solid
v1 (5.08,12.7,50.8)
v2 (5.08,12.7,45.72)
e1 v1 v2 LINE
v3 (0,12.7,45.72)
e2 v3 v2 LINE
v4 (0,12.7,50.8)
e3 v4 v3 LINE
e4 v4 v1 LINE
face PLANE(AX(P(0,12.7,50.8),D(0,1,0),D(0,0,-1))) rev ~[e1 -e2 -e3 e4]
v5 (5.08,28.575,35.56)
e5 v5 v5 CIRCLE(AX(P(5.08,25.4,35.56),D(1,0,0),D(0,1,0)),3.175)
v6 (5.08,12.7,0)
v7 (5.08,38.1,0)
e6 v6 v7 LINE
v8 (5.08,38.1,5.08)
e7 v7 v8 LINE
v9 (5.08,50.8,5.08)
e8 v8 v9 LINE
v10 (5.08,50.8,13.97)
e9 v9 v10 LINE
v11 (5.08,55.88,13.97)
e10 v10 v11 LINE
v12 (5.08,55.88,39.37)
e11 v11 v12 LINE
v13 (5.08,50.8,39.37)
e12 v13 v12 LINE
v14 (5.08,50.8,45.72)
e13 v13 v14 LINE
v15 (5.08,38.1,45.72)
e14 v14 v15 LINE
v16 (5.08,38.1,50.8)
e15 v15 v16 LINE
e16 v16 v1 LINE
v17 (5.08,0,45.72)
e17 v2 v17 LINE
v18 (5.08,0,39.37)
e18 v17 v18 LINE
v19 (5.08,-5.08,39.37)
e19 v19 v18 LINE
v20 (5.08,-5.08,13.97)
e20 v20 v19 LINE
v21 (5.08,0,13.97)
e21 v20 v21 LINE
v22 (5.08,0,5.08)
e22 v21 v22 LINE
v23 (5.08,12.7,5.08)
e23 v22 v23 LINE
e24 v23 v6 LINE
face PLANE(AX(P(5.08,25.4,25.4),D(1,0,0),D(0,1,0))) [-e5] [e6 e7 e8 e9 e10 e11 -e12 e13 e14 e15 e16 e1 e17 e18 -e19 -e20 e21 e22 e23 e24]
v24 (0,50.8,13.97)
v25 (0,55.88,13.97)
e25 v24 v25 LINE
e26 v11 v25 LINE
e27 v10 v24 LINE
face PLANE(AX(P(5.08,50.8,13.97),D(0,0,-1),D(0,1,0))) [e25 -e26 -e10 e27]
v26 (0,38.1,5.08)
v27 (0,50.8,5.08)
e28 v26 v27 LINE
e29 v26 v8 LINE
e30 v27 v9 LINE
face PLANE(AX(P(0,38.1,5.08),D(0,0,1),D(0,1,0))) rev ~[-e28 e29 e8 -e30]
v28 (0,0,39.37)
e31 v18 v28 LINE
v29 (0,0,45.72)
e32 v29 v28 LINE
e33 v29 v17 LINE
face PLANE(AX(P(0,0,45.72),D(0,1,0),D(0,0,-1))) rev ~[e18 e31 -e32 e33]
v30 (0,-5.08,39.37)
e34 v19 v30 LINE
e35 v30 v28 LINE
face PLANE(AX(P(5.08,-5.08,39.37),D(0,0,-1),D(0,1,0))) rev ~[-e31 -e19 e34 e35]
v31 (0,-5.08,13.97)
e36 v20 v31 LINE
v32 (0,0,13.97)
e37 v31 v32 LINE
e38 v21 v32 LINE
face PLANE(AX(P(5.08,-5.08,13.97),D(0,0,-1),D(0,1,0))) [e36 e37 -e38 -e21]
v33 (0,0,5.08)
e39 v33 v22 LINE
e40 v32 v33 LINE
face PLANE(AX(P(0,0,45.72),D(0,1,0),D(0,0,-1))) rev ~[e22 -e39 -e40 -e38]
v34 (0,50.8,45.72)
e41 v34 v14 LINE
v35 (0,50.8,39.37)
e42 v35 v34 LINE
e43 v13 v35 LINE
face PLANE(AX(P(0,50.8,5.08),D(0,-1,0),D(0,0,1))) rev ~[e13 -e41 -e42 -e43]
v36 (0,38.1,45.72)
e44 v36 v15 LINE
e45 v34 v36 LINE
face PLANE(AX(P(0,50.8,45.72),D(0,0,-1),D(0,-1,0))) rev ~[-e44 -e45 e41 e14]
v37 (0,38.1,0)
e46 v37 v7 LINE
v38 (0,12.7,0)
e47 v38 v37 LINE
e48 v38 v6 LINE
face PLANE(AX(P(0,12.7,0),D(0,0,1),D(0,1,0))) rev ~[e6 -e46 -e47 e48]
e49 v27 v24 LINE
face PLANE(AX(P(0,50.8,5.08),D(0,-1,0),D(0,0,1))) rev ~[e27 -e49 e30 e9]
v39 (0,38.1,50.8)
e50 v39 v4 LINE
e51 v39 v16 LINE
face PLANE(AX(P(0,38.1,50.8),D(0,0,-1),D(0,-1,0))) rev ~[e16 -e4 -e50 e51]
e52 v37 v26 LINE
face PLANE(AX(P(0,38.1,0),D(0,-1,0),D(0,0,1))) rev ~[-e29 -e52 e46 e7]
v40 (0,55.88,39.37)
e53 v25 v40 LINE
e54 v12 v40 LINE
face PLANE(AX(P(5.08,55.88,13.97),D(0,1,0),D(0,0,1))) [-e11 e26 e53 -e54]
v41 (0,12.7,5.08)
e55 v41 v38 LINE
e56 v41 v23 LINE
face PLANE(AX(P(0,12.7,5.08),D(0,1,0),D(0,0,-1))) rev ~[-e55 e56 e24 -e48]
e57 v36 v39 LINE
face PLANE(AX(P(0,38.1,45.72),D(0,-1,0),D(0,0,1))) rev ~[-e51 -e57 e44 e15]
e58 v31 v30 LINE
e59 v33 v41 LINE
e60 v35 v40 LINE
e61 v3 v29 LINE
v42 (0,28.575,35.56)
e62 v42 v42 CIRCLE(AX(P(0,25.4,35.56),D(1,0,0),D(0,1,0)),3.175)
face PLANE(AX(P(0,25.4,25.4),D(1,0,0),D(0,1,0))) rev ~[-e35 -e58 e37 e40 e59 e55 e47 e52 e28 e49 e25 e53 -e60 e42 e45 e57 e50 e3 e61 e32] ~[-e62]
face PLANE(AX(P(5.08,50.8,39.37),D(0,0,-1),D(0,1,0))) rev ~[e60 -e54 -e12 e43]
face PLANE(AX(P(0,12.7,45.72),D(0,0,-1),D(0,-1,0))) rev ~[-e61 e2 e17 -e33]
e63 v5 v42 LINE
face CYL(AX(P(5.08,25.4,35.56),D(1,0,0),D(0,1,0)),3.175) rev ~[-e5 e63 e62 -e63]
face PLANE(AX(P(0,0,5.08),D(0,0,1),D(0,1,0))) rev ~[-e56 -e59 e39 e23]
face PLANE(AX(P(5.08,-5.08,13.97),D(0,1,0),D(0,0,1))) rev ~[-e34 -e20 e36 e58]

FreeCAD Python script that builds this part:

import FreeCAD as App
import Part
import Sketcher
Q = App.Units.Quantity


def add_polygon(sketch, points):
    """Adds a closed chain of lines whose ends are joined by coincident constraints."""
    first, n = sketch.GeometryCount, len(points)
    for a, b in zip(points, points[1:] + points[:1]):
        sketch.addGeometry(Part.LineSegment(App.Vector(*a, 0), App.Vector(*b, 0)), False)
    for i in range(n):
        sketch.addConstraint(Sketcher.Constraint("Coincident", first + i, 2, first + (i + 1) % n, 1))

doc = App.newDocument("Part")
params = doc.addObject("Spreadsheet::Sheet", "Params")
for row, (alias, value) in enumerate([
    ("sketch1_width", "1 in"),
    ("sketch1_width2", "0.5 in"),
    ("sketch1_height", "0.2 in"),
    ("sketch1_height2", "1.6 in"),
    ("pad1_length", "0.2 in"),
    ("sketch2_diameter", "0.25 in"),
    ("pocket1_length", "1 in"),
    ("sketch3_height", "1 in"),
    ("sketch3_width", "0.2 in"),
    ("pad2_length", "0.2 in"),
], start=1):
    params.set(f"A{row}", alias)
    params.set(f"B{row}", "=" + value)
    params.setAlias(f"B{row}", alias)

body = doc.addObject("PartDesign::Body", "Body")

sketch1 = body.newObject("Sketcher::SketchObject", "Sketch")
sketch1.AttachmentSupport = (doc.getObject("YZ_Plane"), [""])
sketch1.MapMode = "FlatFace"
add_polygon(sketch1, [(13, 5), (13, 0), (38, 0), (38, 5), (51, 5), (51, 46), (38, 46), (38, 51), (13, 51), (13, 46), (0, 46), (0, 5)])
sketch1.addConstraint(Sketcher.Constraint("Vertical", 0))
sketch1.addConstraint(Sketcher.Constraint("Horizontal", 1))
sketch1.addConstraint(Sketcher.Constraint("Vertical", 2))
sketch1.addConstraint(Sketcher.Constraint("Horizontal", 3))
sketch1.addConstraint(Sketcher.Constraint("Vertical", 4))
sketch1.addConstraint(Sketcher.Constraint("Horizontal", 5))
sketch1.addConstraint(Sketcher.Constraint("Vertical", 6))
sketch1.addConstraint(Sketcher.Constraint("Horizontal", 7))
sketch1.addConstraint(Sketcher.Constraint("Vertical", 8))
sketch1.addConstraint(Sketcher.Constraint("Horizontal", 9))
sketch1.addConstraint(Sketcher.Constraint("Vertical", 10))
sketch1.addConstraint(Sketcher.Constraint("Horizontal", 11))
sketch1.addConstraint(Sketcher.Constraint("PointOnObject", 0, 2, -1))
sketch1.addConstraint(Sketcher.Constraint("PointOnObject", 9, 2, -2))
sketch1.addConstraint(Sketcher.Constraint("Horizontal", 5, 2, 8, 2))
sketch1.addConstraint(Sketcher.Constraint("Horizontal", 3, 2, 10, 2))
sketch1.addConstraint(Sketcher.Constraint("Vertical", 2, 2, 5, 2))
sketch1.addConstraint(Sketcher.Constraint("Vertical", 0, 2, 7, 2))
sketch1.addConstraint(Sketcher.Constraint("Equal", 5, 9))
sketch1.addConstraint(Sketcher.Constraint("Equal", 2, 6))
sketch1.addConstraint(Sketcher.Constraint("DistanceX", 1, 1, 1, 2, Q("1 in")))
sketch1.addConstraint(Sketcher.Constraint("DistanceX", 3, 1, 3, 2, Q("0.5 in")))
sketch1.addConstraint(Sketcher.Constraint("DistanceY", 0, 2, 0, 1, Q("0.2 in")))
sketch1.addConstraint(Sketcher.Constraint("DistanceY", 4, 1, 4, 2, Q("1.6 in")))
sketch1.setExpression("Constraints[32]", "Params.sketch1_width")
sketch1.setExpression("Constraints[33]", "Params.sketch1_width2")
sketch1.setExpression("Constraints[34]", "Params.sketch1_height")
sketch1.setExpression("Constraints[35]", "Params.sketch1_height2")
pad1 = body.newObject("PartDesign::Pad", "Pad")
pad1.Profile = sketch1
pad1.setExpression("Length", "Params.pad1_length")

sketch2 = body.newObject("Sketcher::SketchObject", "Sketch001")
sketch2.AttachmentSupport = (doc.getObject("YZ_Plane"), [""])
sketch2.MapMode = "FlatFace"
sketch2.AttachmentOffset = App.Placement(App.Vector(0, 0, 0.2 * 25.4), App.Rotation())
sketch2.addGeometry(Part.Circle(App.Vector(25.4, 35.6, 0), App.Vector(0, 0, 1), 3.2), False)
sketch2.addConstraint(Sketcher.Constraint("Diameter", 0, Q("0.25 in")))
sketch2.addConstraint(Sketcher.Constraint("DistanceX", -1, 1, 0, 3, Q("1 in")))
sketch2.addConstraint(Sketcher.Constraint("DistanceY", -1, 1, 0, 3, Q("1.4 in")))
sketch2.setExpression("Constraints[0]", "Params.sketch2_diameter")
pocket1 = body.newObject("PartDesign::Pocket", "Pocket")
pocket1.Profile = sketch2
pocket1.setExpression("Length", "Params.pocket1_length")

sketch3 = body.newObject("Sketcher::SketchObject", "Sketch002")
sketch3.AttachmentSupport = (doc.getObject("YZ_Plane"), [""])
sketch3.MapMode = "FlatFace"
sketch3.AttachmentOffset = App.Placement(App.Vector(0, 0, 0.2 * 25.4), App.Rotation())
add_polygon(sketch3, [(-5, 39), (-5, 14), (0, 14), (0, 39)])
add_polygon(sketch3, [(51, 39), (51, 14), (56, 14), (56, 39)])
sketch3.addConstraint(Sketcher.Constraint("Vertical", 0))
sketch3.addConstraint(Sketcher.Constraint("Horizontal", 1))
sketch3.addConstraint(Sketcher.Constraint("Vertical", 2))
sketch3.addConstraint(Sketcher.Constraint("Horizontal", 3))
sketch3.addConstraint(Sketcher.Constraint("Vertical", 4))
sketch3.addConstraint(Sketcher.Constraint("Horizontal", 5))
sketch3.addConstraint(Sketcher.Constraint("Vertical", 6))
sketch3.addConstraint(Sketcher.Constraint("Horizontal", 7))
sketch3.addConstraint(Sketcher.Constraint("PointOnObject", 1, 2, -2))
sketch3.addConstraint(Sketcher.Constraint("Horizontal", 1, 2, 4, 2))
sketch3.addConstraint(Sketcher.Constraint("Horizontal", 3, 2, 6, 2))
sketch3.addConstraint(Sketcher.Constraint("Equal", 3, 5))
sketch3.addConstraint(Sketcher.Constraint("DistanceY", 0, 2, 0, 1, Q("1 in")))
sketch3.addConstraint(Sketcher.Constraint("DistanceX", 1, 1, 1, 2, Q("0.2 in")))
sketch3.addConstraint(Sketcher.Constraint("DistanceX", -1, 1, 4, 2, Q("2 in")))
sketch3.addConstraint(Sketcher.Constraint("DistanceY", -1, 1, 0, 2, Q("0.55 in")))
sketch3.setExpression("Constraints[20]", "Params.sketch3_height")
sketch3.setExpression("Constraints[21]", "Params.sketch3_width")
pad2 = body.newObject("PartDesign::Pad", "Pad001")
pad2.Profile = sketch3
pad2.setExpression("Length", "Params.pad2_length")
pad2.Reversed = True

doc.recompute()
